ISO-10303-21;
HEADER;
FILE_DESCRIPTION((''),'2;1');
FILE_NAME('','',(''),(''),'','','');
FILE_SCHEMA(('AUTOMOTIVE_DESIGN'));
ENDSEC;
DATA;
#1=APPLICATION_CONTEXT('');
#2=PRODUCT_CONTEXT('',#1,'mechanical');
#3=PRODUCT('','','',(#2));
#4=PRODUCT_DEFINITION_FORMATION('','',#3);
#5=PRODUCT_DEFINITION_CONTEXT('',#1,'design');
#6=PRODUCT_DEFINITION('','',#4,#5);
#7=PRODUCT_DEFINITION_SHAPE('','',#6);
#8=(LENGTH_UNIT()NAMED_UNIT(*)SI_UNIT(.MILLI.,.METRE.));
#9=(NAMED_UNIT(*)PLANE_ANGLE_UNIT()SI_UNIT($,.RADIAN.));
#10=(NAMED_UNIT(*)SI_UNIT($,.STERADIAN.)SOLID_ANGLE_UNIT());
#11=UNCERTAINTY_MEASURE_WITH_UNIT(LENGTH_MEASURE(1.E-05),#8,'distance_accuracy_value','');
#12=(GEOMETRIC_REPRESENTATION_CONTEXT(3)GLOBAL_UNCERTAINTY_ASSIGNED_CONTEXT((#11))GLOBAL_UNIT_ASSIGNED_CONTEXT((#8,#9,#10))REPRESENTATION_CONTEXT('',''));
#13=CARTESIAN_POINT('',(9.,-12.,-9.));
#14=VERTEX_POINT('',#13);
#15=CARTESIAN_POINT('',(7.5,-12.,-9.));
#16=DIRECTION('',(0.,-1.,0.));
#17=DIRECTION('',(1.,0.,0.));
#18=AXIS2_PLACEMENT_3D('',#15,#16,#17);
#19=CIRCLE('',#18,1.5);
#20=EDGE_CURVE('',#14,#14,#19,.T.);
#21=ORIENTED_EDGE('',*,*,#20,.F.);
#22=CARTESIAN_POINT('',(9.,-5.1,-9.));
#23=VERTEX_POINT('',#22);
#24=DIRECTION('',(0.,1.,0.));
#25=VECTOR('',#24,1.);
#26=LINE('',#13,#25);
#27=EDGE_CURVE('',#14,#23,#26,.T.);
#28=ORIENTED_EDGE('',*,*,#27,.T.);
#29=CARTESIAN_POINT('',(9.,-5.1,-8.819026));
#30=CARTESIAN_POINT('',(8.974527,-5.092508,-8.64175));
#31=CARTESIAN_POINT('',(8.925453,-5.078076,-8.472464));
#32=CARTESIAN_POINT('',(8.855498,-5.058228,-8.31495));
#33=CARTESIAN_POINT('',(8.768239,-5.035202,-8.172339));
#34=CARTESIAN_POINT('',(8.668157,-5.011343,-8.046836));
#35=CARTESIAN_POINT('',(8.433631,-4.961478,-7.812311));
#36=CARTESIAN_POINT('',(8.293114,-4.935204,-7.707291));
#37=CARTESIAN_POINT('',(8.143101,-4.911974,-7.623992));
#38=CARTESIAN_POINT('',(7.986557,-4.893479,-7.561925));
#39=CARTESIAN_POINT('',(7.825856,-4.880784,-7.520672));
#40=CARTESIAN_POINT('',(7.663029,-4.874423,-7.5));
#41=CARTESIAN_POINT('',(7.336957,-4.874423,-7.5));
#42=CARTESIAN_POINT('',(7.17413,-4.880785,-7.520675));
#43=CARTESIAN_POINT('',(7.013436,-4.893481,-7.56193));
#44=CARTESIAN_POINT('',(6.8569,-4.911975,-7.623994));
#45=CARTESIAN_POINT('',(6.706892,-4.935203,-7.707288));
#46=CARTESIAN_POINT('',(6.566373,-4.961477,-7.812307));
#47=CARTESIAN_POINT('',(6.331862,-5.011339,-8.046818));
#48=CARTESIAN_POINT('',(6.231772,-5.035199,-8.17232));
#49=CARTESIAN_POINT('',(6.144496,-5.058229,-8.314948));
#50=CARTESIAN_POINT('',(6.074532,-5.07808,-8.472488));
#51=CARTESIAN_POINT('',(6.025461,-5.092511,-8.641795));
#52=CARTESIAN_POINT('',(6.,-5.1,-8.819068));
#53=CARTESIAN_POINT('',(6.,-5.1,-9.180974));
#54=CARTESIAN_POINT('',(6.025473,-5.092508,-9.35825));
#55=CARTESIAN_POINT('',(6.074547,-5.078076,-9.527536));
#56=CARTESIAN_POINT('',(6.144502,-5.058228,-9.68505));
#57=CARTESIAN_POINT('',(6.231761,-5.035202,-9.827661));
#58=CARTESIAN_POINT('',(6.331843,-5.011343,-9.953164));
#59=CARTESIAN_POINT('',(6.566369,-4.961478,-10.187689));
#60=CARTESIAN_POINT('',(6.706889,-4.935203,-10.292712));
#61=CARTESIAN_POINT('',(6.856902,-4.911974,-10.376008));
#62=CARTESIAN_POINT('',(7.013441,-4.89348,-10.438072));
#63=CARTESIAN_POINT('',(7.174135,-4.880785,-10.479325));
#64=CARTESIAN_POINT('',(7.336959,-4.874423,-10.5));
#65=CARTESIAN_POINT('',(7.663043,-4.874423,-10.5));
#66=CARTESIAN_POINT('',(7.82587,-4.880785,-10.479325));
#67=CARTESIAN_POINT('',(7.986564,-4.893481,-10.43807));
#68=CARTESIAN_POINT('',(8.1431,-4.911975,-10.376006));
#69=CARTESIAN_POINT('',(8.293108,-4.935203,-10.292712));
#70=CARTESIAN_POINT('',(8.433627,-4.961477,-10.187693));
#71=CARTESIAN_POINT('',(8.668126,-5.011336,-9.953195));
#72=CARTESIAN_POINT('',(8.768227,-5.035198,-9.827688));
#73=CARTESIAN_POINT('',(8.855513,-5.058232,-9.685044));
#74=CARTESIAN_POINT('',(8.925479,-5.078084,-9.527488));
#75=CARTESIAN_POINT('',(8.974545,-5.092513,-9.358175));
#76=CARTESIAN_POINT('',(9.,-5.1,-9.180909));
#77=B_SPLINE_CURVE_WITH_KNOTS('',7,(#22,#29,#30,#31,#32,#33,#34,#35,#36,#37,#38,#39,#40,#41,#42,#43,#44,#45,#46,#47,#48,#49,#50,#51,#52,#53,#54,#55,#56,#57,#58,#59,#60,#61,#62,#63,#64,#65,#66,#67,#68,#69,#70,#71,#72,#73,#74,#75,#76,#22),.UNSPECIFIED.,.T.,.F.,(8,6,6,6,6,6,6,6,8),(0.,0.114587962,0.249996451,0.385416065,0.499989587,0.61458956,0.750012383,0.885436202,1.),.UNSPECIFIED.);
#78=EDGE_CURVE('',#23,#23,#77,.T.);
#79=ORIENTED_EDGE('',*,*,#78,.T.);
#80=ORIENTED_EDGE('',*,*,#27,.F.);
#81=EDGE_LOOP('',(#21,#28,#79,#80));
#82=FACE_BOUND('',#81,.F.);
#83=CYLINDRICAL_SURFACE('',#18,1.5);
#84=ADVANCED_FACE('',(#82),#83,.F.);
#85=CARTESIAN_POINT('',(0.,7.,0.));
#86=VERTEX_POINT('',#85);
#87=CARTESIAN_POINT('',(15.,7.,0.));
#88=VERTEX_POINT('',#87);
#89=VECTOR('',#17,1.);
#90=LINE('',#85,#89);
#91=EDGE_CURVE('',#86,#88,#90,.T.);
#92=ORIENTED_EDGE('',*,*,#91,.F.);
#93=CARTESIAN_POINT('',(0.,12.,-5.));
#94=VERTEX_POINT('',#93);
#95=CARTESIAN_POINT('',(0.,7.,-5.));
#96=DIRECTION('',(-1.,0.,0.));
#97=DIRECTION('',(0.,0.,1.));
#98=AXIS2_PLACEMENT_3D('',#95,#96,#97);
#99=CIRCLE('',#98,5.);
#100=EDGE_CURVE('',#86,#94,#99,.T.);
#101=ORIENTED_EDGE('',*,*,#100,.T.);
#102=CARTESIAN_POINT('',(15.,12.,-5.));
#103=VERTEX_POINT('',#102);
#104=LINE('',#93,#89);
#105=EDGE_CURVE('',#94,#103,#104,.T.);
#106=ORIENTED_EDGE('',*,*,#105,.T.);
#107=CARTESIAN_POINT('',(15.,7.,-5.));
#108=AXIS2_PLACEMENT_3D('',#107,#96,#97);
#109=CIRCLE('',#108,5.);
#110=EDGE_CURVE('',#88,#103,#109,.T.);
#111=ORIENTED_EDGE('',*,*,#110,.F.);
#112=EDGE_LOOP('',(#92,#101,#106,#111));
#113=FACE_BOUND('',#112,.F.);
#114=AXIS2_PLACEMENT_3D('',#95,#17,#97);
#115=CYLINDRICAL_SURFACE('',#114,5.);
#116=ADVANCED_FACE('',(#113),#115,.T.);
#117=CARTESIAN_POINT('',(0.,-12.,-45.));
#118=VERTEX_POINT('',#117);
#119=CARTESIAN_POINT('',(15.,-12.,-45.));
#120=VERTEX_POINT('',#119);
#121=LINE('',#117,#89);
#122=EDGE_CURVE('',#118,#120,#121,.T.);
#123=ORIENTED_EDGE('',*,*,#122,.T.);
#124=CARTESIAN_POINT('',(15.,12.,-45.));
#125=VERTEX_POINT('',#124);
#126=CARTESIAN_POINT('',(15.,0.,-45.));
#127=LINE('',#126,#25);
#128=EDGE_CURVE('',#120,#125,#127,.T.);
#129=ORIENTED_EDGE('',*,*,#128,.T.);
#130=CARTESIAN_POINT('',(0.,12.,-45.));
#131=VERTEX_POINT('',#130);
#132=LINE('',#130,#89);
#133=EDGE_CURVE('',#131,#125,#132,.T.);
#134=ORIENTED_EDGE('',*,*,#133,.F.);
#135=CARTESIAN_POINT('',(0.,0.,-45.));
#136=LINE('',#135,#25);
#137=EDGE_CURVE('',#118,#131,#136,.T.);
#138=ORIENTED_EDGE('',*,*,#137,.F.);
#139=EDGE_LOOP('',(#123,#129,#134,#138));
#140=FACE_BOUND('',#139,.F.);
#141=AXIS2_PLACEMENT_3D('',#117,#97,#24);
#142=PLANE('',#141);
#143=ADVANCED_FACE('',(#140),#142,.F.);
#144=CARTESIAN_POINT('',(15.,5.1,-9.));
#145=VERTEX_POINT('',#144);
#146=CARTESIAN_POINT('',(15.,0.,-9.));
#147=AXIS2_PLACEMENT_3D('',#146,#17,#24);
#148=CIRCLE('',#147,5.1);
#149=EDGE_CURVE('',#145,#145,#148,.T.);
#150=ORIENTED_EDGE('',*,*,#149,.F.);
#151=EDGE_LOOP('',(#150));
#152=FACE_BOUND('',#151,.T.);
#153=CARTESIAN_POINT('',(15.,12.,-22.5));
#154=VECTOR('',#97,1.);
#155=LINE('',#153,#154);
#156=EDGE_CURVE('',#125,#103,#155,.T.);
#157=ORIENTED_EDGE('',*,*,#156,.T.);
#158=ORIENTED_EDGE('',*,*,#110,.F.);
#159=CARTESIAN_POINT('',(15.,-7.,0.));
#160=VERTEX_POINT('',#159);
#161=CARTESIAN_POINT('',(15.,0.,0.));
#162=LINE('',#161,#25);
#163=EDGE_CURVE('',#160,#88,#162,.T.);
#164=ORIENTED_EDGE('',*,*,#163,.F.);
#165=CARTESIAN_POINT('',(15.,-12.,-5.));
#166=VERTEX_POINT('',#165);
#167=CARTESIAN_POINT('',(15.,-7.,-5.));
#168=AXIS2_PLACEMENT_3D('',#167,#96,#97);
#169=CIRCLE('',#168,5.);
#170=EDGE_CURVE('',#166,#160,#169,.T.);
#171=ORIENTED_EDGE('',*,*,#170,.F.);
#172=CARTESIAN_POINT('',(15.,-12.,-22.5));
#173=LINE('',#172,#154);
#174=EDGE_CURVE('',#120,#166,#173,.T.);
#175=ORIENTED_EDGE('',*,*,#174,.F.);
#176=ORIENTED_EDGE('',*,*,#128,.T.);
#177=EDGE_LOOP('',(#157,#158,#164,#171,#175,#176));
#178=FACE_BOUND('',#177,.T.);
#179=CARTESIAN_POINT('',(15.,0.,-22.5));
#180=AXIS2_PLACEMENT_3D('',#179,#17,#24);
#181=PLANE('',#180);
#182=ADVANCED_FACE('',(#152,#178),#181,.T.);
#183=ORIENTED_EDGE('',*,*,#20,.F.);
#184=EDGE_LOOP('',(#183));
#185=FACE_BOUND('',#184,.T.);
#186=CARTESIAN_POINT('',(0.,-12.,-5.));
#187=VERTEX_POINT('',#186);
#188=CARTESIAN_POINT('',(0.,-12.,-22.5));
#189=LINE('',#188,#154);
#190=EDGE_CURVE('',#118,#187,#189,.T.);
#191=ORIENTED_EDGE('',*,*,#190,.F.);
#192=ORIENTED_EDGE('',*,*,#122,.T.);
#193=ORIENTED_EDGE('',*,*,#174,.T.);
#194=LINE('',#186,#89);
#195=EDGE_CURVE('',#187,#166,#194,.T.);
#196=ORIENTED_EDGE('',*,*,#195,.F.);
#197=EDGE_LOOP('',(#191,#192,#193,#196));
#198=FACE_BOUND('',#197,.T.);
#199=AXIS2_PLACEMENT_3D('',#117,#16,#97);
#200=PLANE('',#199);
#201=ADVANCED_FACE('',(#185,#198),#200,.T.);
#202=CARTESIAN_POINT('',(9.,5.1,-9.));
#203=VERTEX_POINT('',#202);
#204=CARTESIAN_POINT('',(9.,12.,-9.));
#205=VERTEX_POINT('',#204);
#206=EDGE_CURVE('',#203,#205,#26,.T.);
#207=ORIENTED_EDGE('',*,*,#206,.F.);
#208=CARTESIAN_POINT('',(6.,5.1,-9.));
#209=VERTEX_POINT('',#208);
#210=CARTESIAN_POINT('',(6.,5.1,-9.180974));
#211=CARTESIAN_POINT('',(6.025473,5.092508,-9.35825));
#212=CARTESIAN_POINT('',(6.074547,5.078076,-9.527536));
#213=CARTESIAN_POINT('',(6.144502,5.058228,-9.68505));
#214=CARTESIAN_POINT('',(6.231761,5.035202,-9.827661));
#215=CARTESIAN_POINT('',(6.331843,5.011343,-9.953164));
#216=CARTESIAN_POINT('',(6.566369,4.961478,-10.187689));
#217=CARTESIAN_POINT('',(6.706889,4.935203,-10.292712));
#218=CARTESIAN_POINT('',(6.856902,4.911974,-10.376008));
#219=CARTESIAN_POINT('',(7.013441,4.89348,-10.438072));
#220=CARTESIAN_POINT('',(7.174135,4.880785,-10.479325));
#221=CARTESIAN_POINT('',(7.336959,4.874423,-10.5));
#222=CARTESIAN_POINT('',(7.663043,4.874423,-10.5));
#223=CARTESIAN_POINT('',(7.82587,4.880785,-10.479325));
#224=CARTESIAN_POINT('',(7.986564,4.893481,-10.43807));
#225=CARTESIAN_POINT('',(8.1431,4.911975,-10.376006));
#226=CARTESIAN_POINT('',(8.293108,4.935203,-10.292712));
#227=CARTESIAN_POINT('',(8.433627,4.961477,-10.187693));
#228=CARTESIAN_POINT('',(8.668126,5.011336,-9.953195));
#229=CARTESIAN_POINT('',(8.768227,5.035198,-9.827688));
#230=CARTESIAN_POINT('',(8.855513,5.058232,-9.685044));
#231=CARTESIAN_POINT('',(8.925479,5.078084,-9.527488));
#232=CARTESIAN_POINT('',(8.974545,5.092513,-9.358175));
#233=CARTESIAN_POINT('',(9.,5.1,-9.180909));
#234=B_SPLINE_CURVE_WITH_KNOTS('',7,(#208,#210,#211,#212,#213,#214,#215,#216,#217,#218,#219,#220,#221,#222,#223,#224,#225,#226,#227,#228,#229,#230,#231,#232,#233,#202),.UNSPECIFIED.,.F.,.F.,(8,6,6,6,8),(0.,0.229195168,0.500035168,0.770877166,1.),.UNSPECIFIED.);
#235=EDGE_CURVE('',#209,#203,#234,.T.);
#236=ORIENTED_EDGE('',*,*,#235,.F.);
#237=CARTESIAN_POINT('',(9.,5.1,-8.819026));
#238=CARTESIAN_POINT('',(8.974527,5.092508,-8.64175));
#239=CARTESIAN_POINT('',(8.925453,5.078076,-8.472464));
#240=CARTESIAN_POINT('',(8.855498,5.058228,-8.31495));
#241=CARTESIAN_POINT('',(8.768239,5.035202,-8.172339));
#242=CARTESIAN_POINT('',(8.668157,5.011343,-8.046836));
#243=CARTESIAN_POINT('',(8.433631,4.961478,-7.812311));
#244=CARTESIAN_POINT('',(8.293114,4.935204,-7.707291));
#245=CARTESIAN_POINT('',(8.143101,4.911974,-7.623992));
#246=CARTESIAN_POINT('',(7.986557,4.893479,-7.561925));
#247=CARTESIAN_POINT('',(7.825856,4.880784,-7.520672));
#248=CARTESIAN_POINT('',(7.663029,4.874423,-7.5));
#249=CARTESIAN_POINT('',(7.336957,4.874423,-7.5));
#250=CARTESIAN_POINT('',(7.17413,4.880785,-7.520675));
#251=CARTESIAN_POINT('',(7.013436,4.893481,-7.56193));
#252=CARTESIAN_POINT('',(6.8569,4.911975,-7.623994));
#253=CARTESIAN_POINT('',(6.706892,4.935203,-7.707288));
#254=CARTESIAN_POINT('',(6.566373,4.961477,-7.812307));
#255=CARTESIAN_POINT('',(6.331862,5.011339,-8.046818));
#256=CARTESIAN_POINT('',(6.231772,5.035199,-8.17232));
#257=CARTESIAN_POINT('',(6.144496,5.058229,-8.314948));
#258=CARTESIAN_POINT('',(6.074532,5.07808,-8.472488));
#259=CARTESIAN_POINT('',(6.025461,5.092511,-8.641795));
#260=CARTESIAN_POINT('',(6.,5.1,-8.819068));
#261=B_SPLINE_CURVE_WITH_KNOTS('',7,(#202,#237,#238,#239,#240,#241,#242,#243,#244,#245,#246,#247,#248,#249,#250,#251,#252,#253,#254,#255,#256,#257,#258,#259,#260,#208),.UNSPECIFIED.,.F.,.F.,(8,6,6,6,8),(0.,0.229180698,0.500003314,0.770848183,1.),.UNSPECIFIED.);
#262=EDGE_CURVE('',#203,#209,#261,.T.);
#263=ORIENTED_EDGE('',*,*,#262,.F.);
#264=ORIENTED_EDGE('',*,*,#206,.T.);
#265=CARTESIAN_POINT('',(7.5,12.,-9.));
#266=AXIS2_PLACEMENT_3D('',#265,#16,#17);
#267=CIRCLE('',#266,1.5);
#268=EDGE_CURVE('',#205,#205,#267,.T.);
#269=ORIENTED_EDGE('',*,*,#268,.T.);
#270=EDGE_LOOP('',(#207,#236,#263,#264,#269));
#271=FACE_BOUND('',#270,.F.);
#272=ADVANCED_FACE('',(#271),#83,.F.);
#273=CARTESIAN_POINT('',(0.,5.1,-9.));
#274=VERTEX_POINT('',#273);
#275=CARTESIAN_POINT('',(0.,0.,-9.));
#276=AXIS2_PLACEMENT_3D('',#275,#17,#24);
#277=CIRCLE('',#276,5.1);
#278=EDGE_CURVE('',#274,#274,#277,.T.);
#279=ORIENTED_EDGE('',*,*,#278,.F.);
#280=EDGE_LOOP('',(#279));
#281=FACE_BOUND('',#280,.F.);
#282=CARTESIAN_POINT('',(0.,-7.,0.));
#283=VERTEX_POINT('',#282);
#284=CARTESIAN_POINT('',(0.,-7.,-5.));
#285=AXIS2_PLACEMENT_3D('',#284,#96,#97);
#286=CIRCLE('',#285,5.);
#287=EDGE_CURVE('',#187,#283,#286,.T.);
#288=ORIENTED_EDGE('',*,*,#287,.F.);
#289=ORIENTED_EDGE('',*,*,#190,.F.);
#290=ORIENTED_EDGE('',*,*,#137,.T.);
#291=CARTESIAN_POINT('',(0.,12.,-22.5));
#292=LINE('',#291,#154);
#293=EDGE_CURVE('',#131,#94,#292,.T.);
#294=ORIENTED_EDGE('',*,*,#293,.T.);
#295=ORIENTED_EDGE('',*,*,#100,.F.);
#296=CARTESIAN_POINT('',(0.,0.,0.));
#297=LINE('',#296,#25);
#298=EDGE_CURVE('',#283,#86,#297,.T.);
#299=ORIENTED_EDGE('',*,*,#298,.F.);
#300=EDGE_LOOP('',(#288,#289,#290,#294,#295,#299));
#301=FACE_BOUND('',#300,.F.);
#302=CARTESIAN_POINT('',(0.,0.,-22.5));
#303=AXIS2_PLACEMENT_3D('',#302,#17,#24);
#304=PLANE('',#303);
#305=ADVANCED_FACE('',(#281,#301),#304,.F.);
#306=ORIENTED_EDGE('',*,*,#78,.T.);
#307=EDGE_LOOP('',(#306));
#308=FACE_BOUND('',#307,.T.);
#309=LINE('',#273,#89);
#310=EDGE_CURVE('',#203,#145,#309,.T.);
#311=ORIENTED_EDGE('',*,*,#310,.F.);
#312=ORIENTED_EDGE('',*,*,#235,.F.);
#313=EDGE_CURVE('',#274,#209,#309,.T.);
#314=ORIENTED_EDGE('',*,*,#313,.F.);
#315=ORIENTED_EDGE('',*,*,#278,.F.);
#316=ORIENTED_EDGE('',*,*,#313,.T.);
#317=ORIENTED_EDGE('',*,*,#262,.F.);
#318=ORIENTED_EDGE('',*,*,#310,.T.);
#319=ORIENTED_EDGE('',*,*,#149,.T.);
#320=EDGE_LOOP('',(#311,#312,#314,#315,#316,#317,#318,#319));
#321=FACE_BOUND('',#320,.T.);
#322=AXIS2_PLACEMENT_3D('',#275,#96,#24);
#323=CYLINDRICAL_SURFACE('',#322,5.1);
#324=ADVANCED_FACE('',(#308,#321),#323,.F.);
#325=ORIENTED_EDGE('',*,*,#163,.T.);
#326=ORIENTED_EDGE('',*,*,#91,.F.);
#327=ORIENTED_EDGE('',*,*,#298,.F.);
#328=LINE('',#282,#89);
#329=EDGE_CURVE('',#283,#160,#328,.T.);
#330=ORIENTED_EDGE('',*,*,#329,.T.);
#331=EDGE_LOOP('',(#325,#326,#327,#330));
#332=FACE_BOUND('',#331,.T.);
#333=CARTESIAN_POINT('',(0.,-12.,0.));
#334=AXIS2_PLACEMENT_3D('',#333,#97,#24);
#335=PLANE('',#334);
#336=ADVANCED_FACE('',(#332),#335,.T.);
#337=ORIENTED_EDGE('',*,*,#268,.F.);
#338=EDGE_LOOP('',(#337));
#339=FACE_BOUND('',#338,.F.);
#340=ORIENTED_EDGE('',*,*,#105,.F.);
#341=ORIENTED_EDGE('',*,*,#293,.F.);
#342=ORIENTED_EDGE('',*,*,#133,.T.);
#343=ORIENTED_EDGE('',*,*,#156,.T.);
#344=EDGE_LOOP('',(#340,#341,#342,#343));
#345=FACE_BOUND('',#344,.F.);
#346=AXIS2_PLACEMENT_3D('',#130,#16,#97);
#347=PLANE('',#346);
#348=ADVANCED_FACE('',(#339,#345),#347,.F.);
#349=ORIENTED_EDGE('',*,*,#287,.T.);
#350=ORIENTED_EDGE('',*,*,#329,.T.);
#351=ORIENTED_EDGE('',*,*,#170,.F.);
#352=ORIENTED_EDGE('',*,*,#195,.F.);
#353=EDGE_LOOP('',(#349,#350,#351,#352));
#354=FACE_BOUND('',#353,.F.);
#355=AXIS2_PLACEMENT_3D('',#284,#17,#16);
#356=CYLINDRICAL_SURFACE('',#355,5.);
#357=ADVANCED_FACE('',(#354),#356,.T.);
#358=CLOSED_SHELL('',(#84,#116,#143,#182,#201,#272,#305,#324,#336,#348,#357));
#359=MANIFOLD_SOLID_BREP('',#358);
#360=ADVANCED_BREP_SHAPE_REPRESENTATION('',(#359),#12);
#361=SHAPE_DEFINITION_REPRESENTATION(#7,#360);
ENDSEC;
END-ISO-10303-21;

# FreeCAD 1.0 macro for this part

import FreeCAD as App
import Part
import Sketcher

V = App.Vector
Q = App.Units.Quantity


def edges_at(feature, points):
    """Names of the edges that pass closest to the given points."""
    edges = feature.Shape.Edges
    near = lambda p: min(range(len(edges)), key=lambda i: edges[i].distToShape(Part.Vertex(*p))[0])
    return sorted({f"Edge{near(p) + 1}" for p in points})


def add_polygon(sketch, points):
    """Adds a closed chain of lines whose ends are joined by coincident constraints."""
    first, n = sketch.GeometryCount, len(points)
    for a, b in zip(points, points[1:] + points[:1]):
        sketch.addGeometry(Part.LineSegment(App.Vector(*a, 0), App.Vector(*b, 0)), False)
    for i in range(n):
        sketch.addConstraint(Sketcher.Constraint("Coincident", first + i, 2, first + (i + 1) % n, 1))

doc = App.newDocument("Part")
body = doc.addObject("PartDesign::Body", "Body")

# Sketch on YZ plane
sketch1 = body.newObject("Sketcher::SketchObject", "Sketch")
sketch1.AttachmentSupport = (doc.getObject("YZ_Plane"), [""])
sketch1.MapMode = "FlatFace"
add_polygon(sketch1, [(-12, 0), (-12, -45), (12, -45), (12, 0)])  # lines 0-3
sketch1.addGeometry(Part.Circle(V(0, -9, 0), V(0, 0, 1), 5), False)  # 4
sketch1.addConstraint([
    Sketcher.Constraint("Vertical", 0),
    Sketcher.Constraint("Horizontal", 1),
    Sketcher.Constraint("Vertical", 2),
    Sketcher.Constraint("Horizontal", 3),
    Sketcher.Constraint("Symmetric", 2, 2, 3, 2, -1, 1),
    Sketcher.Constraint("PointOnObject", 4, 3, -2),
    Sketcher.Constraint("Diameter", 4, Q("10.2 mm")),
    Sketcher.Constraint("DistanceX", 1, 1, 1, 2, Q("24 mm")),
    Sketcher.Constraint("DistanceY", 0, 2, 0, 1, Q("45 mm")),
    Sketcher.Constraint("DistanceY", 4, 3, -1, 1, Q("9 mm")),
])
pad1 = body.newObject("PartDesign::Pad", "Pad")
pad1.Profile = sketch1
pad1.Length = 15
doc.recompute()

fillet = body.newObject("PartDesign::Fillet", "Fillet")
fillet.Base = (pad1, edges_at(pad1, [(7.5, 12, 0), (7.5, -12, 0)]))
fillet.Radius = 5

# Sketch on XZ plane
sketch2 = body.newObject("Sketcher::SketchObject", "Sketch001")
sketch2.AttachmentSupport = (doc.getObject("XZ_Plane"), [""])
sketch2.MapMode = "FlatFace"
sketch2.AttachmentOffset = App.Placement(V(0, 0, 12), App.Rotation())
sketch2.addGeometry(Part.Circle(V(7.5, -9, 0), V(0, 0, 1), 1.5), False)
sketch2.addConstraint([
    Sketcher.Constraint("Diameter", 0, Q("3 mm")),
    Sketcher.Constraint("DistanceY", 0, 3, -1, 1, Q("9 mm")),
    Sketcher.Constraint("DistanceX", -1, 1, 0, 3, Q("7.5 mm")),
])
pocket1 = body.newObject("PartDesign::Pocket", "Pocket")
pocket1.Profile = sketch2
pocket1.Type = "ThroughAll"

doc.recompute()
